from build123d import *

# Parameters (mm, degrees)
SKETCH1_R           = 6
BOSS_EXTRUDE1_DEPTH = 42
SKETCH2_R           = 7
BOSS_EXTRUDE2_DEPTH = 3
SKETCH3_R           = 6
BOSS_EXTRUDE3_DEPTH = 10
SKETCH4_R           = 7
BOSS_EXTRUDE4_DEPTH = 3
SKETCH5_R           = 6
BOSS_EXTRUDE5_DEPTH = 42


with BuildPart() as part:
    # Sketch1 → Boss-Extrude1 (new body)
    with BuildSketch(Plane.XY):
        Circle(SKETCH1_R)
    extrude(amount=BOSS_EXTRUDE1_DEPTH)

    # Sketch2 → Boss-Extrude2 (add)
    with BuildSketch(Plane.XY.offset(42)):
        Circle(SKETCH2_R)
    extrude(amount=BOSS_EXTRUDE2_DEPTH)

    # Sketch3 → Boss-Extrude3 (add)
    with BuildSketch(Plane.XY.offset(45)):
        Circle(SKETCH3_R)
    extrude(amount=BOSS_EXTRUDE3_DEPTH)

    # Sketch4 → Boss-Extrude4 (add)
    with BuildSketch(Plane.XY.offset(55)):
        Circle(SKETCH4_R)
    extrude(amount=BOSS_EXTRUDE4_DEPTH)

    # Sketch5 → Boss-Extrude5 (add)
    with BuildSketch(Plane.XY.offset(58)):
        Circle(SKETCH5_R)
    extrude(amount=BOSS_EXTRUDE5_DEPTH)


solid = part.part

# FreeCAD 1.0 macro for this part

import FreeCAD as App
import Part
import Sketcher

V = App.Vector
Q = App.Units.Quantity

doc = App.newDocument("Part")
params = doc.addObject("Spreadsheet::Sheet", "Params")
for row, (alias, value) in enumerate([
    ("sketch1_diameter", "12 mm"),
    ("pad1_length", "42 mm"),
    ("sketch2_diameter", "14 mm"),
    ("pad2_length", "3 mm"),
    ("sketch3_diameter", "12 mm"),
    ("pad3_length", "10 mm"),
    ("sketch4_diameter", "14 mm"),
    ("pad4_length", "3 mm"),
    ("sketch5_diameter", "12 mm"),
    ("pad5_length", "42 mm"),
], start=1):
    params.set(f"A{row}", alias)
    params.set(f"B{row}", "=" + value)
    params.setAlias(f"B{row}", alias)

body = doc.addObject("PartDesign::Body", "Body")

# Sketch on XY plane
sketch1 = doc.addObject("Sketcher::SketchObject", "Sketch")
body.addObject(sketch1)
sketch1.AttachmentSupport = (doc.XY_Plane, [""])
sketch1.MapMode = "FlatFace"
sketch1.addGeometry(Part.Circle(V(0, 0, 0), V(0, 0, 1), 6), False)
sketch1.addConstraint([
    Sketcher.Constraint("Coincident", 0, 3, -1, 1),
    Sketcher.Constraint("Diameter", 0, Q("12 mm")),
])
sketch1.setExpression("Constraints[1]", "Params.sketch1_diameter")
pad1 = doc.addObject("PartDesign::Pad", "Pad")
body.addObject(pad1)
pad1.Profile = sketch1
pad1.setExpression("Length", "Params.pad1_length")

# Sketch on XY plane
sketch2 = doc.addObject("Sketcher::SketchObject", "Sketch001")
body.addObject(sketch2)
sketch2.AttachmentSupport = (doc.XY_Plane, [""])
sketch2.MapMode = "FlatFace"
sketch2.AttachmentOffset = App.Placement(V(0, 0, 42), App.Rotation())
sketch2.addGeometry(Part.Circle(V(0, 0, 0), V(0, 0, 1), 7), False)
sketch2.addConstraint([
    Sketcher.Constraint("Coincident", 0, 3, -1, 1),
    Sketcher.Constraint("Diameter", 0, Q("14 mm")),
])
sketch2.setExpression("Constraints[1]", "Params.sketch2_diameter")
pad2 = doc.addObject("PartDesign::Pad", "Pad001")
body.addObject(pad2)
pad2.Profile = sketch2
pad2.setExpression("Length", "Params.pad2_length")

# Sketch on XY plane
sketch3 = doc.addObject("Sketcher::SketchObject", "Sketch002")
body.addObject(sketch3)
sketch3.AttachmentSupport = (doc.XY_Plane, [""])
sketch3.MapMode = "FlatFace"
sketch3.AttachmentOffset = App.Placement(V(0, 0, 45), App.Rotation())
sketch3.addGeometry(Part.Circle(V(0, 0, 0), V(0, 0, 1), 6), False)
sketch3.addConstraint([
    Sketcher.Constraint("Coincident", 0, 3, -1, 1),
    Sketcher.Constraint("Diameter", 0, Q("12 mm")),
])
sketch3.setExpression("Constraints[1]", "Params.sketch3_diameter")
pad3 = doc.addObject("PartDesign::Pad", "Pad002")
body.addObject(pad3)
pad3.Profile = sketch3
pad3.setExpression("Length", "Params.pad3_length")

# Sketch on XY plane
sketch4 = doc.addObject("Sketcher::SketchObject", "Sketch003")
body.addObject(sketch4)
sketch4.AttachmentSupport = (doc.XY_Plane, [""])
sketch4.MapMode = "FlatFace"
sketch4.AttachmentOffset = App.Placement(V(0, 0, 55), App.Rotation())
sketch4.addGeometry(Part.Circle(V(0, 0, 0), V(0, 0, 1), 7), False)
sketch4.addConstraint([
    Sketcher.Constraint("Coincident", 0, 3, -1, 1),
    Sketcher.Constraint("Diameter", 0, Q("14 mm")),
])
sketch4.setExpression("Constraints[1]", "Params.sketch4_diameter")
pad4 = doc.addObject("PartDesign::Pad", "Pad003")
body.addObject(pad4)
pad4.Profile = sketch4
pad4.setExpression("Length", "Params.pad4_length")

# Sketch on XY plane
sketch5 = doc.addObject("Sketcher::SketchObject", "Sketch004")
body.addObject(sketch5)
sketch5.AttachmentSupport = (doc.XY_Plane, [""])
sketch5.MapMode = "FlatFace"
sketch5.AttachmentOffset = App.Placement(V(0, 0, 58), App.Rotation())
sketch5.addGeometry(Part.Circle(V(0, 0, 0), V(0, 0, 1), 6), False)
sketch5.addConstraint([
    Sketcher.Constraint("Coincident", 0, 3, -1, 1),
    Sketcher.Constraint("Diameter", 0, Q("12 mm")),
])
sketch5.setExpression("Constraints[1]", "Params.sketch5_diameter")
pad5 = doc.addObject("PartDesign::Pad", "Pad004")
body.addObject(pad5)
pad5.Profile = sketch5
pad5.setExpression("Length", "Params.pad5_length")

doc.recompute()
